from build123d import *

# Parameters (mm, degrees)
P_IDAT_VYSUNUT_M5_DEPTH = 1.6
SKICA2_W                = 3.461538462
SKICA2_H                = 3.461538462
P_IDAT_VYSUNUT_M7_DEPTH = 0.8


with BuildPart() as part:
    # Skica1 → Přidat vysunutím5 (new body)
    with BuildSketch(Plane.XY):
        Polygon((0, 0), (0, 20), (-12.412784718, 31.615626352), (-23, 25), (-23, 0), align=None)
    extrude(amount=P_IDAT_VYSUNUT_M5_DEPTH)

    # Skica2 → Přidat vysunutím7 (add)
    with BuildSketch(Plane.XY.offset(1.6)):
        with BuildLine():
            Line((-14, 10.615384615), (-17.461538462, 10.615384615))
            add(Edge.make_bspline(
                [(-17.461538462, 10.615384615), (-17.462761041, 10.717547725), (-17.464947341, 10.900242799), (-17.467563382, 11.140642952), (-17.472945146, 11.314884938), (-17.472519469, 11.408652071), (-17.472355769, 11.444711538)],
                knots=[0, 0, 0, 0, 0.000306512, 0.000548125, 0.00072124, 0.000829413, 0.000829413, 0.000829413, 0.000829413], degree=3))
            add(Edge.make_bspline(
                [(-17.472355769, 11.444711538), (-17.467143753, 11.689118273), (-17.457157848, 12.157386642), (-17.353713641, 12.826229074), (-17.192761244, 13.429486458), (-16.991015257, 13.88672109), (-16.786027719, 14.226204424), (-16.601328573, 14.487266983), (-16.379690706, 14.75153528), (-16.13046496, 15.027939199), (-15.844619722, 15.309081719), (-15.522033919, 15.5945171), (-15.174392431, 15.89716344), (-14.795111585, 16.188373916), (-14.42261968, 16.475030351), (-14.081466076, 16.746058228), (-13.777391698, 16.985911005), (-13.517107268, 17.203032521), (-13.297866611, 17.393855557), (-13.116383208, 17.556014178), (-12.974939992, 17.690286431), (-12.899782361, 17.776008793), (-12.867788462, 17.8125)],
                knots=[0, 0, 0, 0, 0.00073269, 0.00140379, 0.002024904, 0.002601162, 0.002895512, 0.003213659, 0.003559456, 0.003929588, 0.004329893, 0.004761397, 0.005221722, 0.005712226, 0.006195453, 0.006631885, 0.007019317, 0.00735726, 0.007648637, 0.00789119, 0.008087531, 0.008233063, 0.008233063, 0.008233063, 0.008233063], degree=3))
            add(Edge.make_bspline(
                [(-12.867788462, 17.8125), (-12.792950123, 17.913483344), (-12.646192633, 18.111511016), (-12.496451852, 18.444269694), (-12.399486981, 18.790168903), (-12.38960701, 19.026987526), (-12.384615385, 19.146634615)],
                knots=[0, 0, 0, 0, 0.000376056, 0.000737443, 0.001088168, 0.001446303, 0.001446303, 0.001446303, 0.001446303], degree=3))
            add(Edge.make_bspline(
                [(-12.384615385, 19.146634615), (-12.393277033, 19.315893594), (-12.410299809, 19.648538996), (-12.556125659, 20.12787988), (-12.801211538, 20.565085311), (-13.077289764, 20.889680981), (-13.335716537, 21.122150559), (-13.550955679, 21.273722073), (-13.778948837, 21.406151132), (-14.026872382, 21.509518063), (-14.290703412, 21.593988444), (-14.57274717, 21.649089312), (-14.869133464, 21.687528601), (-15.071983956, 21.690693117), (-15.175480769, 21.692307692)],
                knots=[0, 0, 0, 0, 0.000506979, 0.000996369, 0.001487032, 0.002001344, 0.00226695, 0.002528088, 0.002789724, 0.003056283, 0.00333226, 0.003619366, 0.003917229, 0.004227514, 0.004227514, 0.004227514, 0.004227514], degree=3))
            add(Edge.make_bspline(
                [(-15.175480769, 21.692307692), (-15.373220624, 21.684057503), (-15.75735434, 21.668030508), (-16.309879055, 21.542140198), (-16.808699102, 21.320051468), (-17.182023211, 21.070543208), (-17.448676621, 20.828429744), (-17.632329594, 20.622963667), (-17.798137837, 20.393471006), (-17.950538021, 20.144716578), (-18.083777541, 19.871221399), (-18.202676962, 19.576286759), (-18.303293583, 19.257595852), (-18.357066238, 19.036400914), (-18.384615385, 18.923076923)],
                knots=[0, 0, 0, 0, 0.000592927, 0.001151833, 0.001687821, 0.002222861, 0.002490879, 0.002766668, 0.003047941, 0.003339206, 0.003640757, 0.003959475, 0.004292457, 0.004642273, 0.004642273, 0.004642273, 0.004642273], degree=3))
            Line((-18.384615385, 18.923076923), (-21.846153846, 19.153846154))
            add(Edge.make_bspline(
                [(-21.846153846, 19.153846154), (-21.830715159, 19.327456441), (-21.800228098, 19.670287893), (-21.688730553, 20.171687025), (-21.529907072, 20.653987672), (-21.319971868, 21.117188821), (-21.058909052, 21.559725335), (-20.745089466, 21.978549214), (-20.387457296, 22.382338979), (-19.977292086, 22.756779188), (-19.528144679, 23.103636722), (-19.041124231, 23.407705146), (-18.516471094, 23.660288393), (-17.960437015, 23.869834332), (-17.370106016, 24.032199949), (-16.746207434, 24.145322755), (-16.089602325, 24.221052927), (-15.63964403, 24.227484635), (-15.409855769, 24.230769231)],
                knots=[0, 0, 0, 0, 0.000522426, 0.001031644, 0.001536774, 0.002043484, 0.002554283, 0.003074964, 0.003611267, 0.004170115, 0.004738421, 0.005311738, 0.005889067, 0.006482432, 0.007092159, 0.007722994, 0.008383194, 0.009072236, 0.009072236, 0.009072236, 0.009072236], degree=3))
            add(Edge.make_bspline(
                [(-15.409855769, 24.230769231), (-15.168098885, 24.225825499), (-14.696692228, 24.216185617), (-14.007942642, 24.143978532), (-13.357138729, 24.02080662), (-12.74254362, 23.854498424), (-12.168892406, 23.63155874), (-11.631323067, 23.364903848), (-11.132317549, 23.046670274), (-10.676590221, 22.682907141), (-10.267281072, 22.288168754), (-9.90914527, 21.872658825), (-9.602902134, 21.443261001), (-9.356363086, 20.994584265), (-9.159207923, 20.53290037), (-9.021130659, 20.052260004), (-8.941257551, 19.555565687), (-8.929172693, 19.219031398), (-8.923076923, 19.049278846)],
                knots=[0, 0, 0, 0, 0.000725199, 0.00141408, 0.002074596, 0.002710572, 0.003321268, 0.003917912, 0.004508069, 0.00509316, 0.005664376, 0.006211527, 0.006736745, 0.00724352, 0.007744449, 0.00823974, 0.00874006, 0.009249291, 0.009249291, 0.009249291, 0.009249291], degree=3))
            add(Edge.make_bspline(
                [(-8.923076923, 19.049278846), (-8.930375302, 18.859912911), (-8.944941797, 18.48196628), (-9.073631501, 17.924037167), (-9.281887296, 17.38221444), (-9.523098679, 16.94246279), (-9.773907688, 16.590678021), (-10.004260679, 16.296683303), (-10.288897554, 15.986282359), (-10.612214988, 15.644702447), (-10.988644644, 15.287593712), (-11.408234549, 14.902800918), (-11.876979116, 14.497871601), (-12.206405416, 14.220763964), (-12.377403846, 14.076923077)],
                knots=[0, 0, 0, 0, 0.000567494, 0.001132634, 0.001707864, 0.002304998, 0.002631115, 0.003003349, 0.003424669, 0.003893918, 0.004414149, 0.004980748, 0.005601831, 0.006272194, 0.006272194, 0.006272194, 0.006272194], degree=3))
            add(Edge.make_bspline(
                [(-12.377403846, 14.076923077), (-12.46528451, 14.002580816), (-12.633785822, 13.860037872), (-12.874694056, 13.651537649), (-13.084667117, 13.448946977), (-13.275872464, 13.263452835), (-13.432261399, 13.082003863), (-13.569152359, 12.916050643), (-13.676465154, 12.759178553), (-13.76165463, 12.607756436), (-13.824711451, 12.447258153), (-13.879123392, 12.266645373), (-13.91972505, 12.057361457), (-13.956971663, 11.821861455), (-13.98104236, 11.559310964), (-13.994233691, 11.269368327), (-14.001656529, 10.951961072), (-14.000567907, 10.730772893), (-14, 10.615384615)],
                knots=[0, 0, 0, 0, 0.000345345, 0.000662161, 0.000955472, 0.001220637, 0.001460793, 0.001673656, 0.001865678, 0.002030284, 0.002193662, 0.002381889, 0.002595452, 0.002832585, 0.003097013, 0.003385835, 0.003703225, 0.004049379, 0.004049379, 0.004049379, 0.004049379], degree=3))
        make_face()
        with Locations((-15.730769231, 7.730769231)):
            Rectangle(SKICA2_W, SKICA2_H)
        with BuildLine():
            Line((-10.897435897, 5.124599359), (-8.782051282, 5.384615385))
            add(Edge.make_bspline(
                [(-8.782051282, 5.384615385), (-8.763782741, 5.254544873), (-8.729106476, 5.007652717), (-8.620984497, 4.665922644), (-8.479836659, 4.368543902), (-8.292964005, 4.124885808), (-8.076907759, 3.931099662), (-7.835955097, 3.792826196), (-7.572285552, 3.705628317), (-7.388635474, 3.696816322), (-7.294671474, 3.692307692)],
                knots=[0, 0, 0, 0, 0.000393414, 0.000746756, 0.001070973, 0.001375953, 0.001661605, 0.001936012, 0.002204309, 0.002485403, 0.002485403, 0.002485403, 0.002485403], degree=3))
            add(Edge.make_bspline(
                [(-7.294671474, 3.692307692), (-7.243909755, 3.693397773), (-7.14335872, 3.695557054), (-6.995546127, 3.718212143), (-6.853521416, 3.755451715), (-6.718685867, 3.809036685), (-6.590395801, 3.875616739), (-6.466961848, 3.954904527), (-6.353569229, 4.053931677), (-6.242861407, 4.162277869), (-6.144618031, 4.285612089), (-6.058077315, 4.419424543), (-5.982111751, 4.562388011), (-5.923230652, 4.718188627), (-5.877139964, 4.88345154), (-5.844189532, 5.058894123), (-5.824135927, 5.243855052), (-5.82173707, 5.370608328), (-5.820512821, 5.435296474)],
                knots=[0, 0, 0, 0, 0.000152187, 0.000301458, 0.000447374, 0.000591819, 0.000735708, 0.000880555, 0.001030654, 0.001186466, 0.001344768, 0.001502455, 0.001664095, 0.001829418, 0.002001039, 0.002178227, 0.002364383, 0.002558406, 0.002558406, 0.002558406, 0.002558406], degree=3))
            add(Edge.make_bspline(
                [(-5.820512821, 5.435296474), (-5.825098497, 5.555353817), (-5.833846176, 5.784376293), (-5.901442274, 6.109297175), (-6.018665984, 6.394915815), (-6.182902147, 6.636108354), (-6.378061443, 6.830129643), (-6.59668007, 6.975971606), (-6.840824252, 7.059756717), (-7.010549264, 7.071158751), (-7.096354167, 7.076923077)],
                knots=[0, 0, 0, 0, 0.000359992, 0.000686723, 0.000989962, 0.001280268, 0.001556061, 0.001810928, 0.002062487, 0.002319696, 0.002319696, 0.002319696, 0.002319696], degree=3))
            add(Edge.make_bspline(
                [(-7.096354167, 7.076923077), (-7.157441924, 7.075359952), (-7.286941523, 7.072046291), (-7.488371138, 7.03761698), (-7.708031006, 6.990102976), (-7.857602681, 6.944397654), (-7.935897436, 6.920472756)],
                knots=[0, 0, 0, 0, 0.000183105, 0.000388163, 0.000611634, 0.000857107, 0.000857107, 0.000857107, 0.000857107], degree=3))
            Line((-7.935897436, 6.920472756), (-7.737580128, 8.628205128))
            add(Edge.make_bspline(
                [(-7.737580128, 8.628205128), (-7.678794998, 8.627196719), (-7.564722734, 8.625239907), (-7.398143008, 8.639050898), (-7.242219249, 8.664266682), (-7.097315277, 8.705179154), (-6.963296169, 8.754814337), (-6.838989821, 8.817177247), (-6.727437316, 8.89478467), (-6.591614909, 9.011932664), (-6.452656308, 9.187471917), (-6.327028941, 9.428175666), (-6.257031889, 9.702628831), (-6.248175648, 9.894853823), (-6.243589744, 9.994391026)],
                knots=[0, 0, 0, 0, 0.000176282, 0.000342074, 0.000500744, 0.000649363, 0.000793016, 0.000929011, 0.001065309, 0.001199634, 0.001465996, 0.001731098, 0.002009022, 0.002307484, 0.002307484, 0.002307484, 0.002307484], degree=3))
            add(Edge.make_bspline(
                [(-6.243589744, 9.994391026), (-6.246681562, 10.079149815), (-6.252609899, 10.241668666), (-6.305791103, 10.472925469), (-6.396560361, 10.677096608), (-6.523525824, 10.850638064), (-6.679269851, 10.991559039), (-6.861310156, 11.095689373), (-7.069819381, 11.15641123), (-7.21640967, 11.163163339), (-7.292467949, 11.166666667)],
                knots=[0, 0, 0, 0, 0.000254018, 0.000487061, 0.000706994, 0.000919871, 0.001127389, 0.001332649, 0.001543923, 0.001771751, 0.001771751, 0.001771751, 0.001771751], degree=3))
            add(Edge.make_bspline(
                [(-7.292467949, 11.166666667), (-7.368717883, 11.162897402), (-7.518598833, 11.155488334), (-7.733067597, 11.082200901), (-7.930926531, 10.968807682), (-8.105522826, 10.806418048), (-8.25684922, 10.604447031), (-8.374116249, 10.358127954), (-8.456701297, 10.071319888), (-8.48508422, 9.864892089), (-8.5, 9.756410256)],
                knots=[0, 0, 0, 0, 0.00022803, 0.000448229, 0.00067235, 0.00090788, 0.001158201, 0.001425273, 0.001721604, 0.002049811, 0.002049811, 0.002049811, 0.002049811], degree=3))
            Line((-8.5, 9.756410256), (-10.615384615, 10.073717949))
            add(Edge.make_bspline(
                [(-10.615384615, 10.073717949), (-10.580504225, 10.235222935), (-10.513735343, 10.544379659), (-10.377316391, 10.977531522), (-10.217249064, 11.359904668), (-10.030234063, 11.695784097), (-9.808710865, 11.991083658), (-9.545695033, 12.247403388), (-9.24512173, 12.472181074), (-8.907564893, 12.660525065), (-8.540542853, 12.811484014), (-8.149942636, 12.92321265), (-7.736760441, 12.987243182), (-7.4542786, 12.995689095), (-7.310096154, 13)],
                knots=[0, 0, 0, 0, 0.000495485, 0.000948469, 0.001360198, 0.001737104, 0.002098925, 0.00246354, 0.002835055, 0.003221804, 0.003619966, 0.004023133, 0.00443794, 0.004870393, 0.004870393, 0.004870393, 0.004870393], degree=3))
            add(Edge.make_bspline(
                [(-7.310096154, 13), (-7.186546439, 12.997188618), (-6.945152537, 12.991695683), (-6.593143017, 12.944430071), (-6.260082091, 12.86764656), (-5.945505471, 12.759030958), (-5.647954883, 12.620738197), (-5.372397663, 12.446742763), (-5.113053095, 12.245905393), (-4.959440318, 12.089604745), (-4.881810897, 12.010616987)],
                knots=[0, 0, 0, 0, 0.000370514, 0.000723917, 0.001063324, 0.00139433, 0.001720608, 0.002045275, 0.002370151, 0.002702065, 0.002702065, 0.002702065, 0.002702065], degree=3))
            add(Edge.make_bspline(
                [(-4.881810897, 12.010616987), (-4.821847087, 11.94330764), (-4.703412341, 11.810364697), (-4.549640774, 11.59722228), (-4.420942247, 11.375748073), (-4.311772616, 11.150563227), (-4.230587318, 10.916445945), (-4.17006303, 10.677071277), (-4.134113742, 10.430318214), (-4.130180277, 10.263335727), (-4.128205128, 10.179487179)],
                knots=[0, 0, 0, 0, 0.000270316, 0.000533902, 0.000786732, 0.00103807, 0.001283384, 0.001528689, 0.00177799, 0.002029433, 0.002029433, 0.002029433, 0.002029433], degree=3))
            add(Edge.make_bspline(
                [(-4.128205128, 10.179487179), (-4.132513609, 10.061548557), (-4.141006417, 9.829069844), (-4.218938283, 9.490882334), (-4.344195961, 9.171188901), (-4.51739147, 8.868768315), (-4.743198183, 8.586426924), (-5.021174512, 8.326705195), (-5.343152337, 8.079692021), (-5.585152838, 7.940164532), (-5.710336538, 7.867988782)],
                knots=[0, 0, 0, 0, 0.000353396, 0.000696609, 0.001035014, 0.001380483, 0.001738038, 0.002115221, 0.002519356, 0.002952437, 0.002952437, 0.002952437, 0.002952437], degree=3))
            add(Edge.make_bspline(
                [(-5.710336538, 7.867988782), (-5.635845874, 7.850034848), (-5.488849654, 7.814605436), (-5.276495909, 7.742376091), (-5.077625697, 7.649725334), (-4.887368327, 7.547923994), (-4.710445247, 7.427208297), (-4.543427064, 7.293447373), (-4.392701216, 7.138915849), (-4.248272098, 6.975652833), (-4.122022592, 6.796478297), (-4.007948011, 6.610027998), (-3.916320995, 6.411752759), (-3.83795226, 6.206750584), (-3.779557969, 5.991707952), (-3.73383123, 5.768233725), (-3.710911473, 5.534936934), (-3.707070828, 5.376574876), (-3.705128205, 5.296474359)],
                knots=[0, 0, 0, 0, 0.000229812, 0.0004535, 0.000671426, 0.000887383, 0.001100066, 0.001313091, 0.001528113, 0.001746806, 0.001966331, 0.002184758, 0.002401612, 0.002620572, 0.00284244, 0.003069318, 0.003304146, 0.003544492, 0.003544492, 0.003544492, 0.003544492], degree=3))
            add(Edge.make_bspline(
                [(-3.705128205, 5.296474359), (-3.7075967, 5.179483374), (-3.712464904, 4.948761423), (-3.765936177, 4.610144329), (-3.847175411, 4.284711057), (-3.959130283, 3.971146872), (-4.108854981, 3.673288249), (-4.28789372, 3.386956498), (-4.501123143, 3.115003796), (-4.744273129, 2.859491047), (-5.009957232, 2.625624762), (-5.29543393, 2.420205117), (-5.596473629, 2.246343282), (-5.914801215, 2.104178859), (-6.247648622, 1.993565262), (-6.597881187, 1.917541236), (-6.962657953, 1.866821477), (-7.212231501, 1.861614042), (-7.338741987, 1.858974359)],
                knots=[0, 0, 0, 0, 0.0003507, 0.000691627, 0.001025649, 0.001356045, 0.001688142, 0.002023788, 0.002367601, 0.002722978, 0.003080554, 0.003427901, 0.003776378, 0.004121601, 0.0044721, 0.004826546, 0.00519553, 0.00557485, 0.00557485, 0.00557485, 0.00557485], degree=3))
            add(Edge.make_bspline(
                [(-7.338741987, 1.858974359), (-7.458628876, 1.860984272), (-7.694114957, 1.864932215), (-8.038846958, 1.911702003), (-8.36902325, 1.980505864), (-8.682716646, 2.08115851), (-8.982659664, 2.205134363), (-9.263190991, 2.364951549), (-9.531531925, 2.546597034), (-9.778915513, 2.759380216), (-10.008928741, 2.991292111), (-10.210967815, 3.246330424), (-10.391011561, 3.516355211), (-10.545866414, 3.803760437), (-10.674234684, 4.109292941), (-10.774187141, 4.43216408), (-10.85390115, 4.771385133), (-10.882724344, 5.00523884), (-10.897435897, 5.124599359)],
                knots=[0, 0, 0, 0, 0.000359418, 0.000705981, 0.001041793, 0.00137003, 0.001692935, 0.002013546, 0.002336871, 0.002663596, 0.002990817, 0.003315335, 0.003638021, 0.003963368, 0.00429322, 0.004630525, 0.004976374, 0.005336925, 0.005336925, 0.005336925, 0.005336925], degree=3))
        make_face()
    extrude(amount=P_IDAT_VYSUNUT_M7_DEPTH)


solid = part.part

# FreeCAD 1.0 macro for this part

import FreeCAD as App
import Part
import Sketcher

V = App.Vector
Q = App.Units.Quantity

doc = App.newDocument("Part")
body = doc.addObject("PartDesign::Body", "Body")

sketch1 = body.newObject("Sketcher::SketchObject", "Sketch")
sketch1.AttachmentSupport = (doc.getObject("XY_Plane"), [""])
sketch1.MapMode = "FlatFace"
sketch1.addGeometry(Part.LineSegment(V(0, 0, 0), V(0, 20, 0)), False)
sketch1.addGeometry(Part.LineSegment(V(0, 20, 0), V(-12, 32, 0)), False)
sketch1.addGeometry(Part.LineSegment(V(-12, 32, 0), V(-23, 25, 0)), False)
sketch1.addGeometry(Part.LineSegment(V(-23, 25, 0), V(-23, 0, 0)), False)
sketch1.addGeometry(Part.LineSegment(V(-23, 0, 0), V(0, 0, 0)), False)
sketch1.addConstraint(Sketcher.Constraint("Coincident", 0, 2, 1, 1))
sketch1.addConstraint(Sketcher.Constraint("Coincident", 1, 2, 2, 1))
sketch1.addConstraint(Sketcher.Constraint("Coincident", 2, 2, 3, 1))
sketch1.addConstraint(Sketcher.Constraint("Coincident", 3, 2, 4, 1))
sketch1.addConstraint(Sketcher.Constraint("Coincident", 4, 2, 0, 1))
sketch1.addConstraint(Sketcher.Constraint("Vertical", 0))
sketch1.addConstraint(Sketcher.Constraint("Vertical", 3))
sketch1.addConstraint(Sketcher.Constraint("Horizontal", 4))
sketch1.addConstraint(Sketcher.Constraint("Coincident", 4, 2, -1, 1))
sketch1.addConstraint(Sketcher.Constraint("DistanceX", 4, 1, 4, 2, 23.0))
sketch1.addConstraint(Sketcher.Constraint("DistanceY", 0, 1, 0, 2, 20.0))
sketch1.addConstraint(Sketcher.Constraint("DistanceY", 3, 2, 3, 1, 25.0))
sketch1.addConstraint(Sketcher.Constraint("Angle", 2, Q("-148 deg")))
sketch1.addConstraint(Sketcher.Constraint("Distance", 1, 17.0))
pad1 = body.newObject("PartDesign::Pad", "Pad")
pad1.Profile = sketch1
pad1.Length = 1.6

sketch2 = body.newObject("Sketcher::SketchObject", "Sketch001")
sketch2.AttachmentSupport = (doc.getObject("XY_Plane"), [""])
sketch2.MapMode = "FlatFace"
sketch2.AttachmentOffset = App.Placement(V(0, 0, 1.6), App.Rotation())
sketch2.addGeometry(Part.LineSegment(V(-17.461538, 10.615385, 0), V(-14, 10.615385, 0)), False)
sketch2.addGeometry(Part.BSplineCurve([V(-12.377404, 14.076923, 0), V(-12.465285, 14.002581, 0), V(-12.633786, 13.860038, 0), V(-12.874694, 13.651538, 0), V(-13.084667, 13.448947, 0), V(-13.275872, 13.263453, 0), V(-13.432261, 13.082004, 0), V(-13.569152, 12.916051, 0), V(-13.676465, 12.759179, 0), V(-13.761655, 12.607756, 0), V(-13.824711, 12.447258, 0), V(-13.879123, 12.266645, 0), V(-13.919725, 12.057361, 0), V(-13.956972, 11.821861, 0), V(-13.981042, 11.559311, 0), V(-13.994234, 11.269368, 0), V(-14.001657, 10.951961, 0), V(-14.000568, 10.730773, 0), V(-14, 10.615385, 0)], [4, 1, 1, 1, 1, 1, 1, 1, 1, 1, 1, 1, 1, 1, 1, 1, 4], [0, 0.000345345, 0.000662161, 0.000955472, 0.001220637, 0.001460793, 0.001673656, 0.001865678, 0.002030284, 0.002193662, 0.002381889, 0.002595452, 0.002832585, 0.003097013, 0.003385835, 0.003703225, 0.004049379], False, 3, [1, 1, 1, 1, 1, 1, 1, 1, 1, 1, 1, 1, 1, 1, 1, 1, 1, 1, 1], False), False)
sketch2.addGeometry(Part.BSplineCurve([V(-8.923077, 19.049279, 0), V(-8.930375, 18.859913, 0), V(-8.944942, 18.481966, 0), V(-9.073632, 17.924037, 0), V(-9.281887, 17.382214, 0), V(-9.523099, 16.942463, 0), V(-9.773908, 16.590678, 0), V(-10.004261, 16.296683, 0), V(-10.288898, 15.986282, 0), V(-10.612215, 15.644702, 0), V(-10.988645, 15.287594, 0), V(-11.408235, 14.902801, 0), V(-11.876979, 14.497872, 0), V(-12.206405, 14.220764, 0), V(-12.377404, 14.076923, 0)], [4, 1, 1, 1, 1, 1, 1, 1, 1, 1, 1, 1, 4], [0, 0.000567494, 0.001132634, 0.001707864, 0.002304998, 0.002631115, 0.003003349, 0.003424669, 0.003893918, 0.004414149, 0.004980748, 0.005601831, 0.006272194], False, 3, [1, 1, 1, 1, 1, 1, 1, 1, 1, 1, 1, 1, 1, 1, 1], False), False)
sketch2.addGeometry(Part.BSplineCurve([V(-15.409856, 24.230769, 0), V(-15.168099, 24.225825, 0), V(-14.696692, 24.216186, 0), V(-14.007943, 24.143979, 0), V(-13.357139, 24.020807, 0), V(-12.742544, 23.854498, 0), V(-12.168892, 23.631559, 0), V(-11.631323, 23.364904, 0), V(-11.132318, 23.04667, 0), V(-10.67659, 22.682907, 0), V(-10.267281, 22.288169, 0), V(-9.909145, 21.872659, 0), V(-9.602902, 21.443261, 0), V(-9.356363, 20.994584, 0), V(-9.159208, 20.5329, 0), V(-9.021131, 20.05226, 0), V(-8.941258, 19.555566, 0), V(-8.929173, 19.219031, 0), V(-8.923077, 19.049279, 0)], [4, 1, 1, 1, 1, 1, 1, 1, 1, 1, 1, 1, 1, 1, 1, 1, 4], [0, 0.000725199, 0.00141408, 0.002074596, 0.002710572, 0.003321268, 0.003917912, 0.004508069, 0.00509316, 0.005664376, 0.006211527, 0.006736745, 0.00724352, 0.007744449, 0.00823974, 0.00874006, 0.009249291], False, 3, [1, 1, 1, 1, 1, 1, 1, 1, 1, 1, 1, 1, 1, 1, 1, 1, 1, 1, 1], False), False)
sketch2.addGeometry(Part.BSplineCurve([V(-21.846154, 19.153846, 0), V(-21.830715, 19.327456, 0), V(-21.800228, 19.670288, 0), V(-21.688731, 20.171687, 0), V(-21.529907, 20.653988, 0), V(-21.319972, 21.117189, 0), V(-21.058909, 21.559725, 0), V(-20.745089, 21.978549, 0), V(-20.387457, 22.382339, 0), V(-19.977292, 22.756779, 0), V(-19.528145, 23.103637, 0), V(-19.041124, 23.407705, 0), V(-18.516471, 23.660288, 0), V(-17.960437, 23.869834, 0), V(-17.370106, 24.0322, 0), V(-16.746207, 24.145323, 0), V(-16.089602, 24.221053, 0), V(-15.639644, 24.227485, 0), V(-15.409856, 24.230769, 0)], [4, 1, 1, 1, 1, 1, 1, 1, 1, 1, 1, 1, 1, 1, 1, 1, 4], [0, 0.000522426, 0.001031644, 0.001536774, 0.002043484, 0.002554283, 0.003074964, 0.003611267, 0.004170115, 0.004738421, 0.005311738, 0.005889067, 0.006482432, 0.007092159, 0.007722994, 0.008383194, 0.009072236], False, 3, [1, 1, 1, 1, 1, 1, 1, 1, 1, 1, 1, 1, 1, 1, 1, 1, 1, 1, 1], False), False)
sketch2.addGeometry(Part.LineSegment(V(-21.846154, 19.153846, 0), V(-18.384615, 18.923077, 0)), False)
sketch2.addGeometry(Part.BSplineCurve([V(-15.175481, 21.692308, 0), V(-15.373221, 21.684058, 0), V(-15.757354, 21.668031, 0), V(-16.309879, 21.54214, 0), V(-16.808699, 21.320051, 0), V(-17.182023, 21.070543, 0), V(-17.448677, 20.82843, 0), V(-17.63233, 20.622964, 0), V(-17.798138, 20.393471, 0), V(-17.950538, 20.144717, 0), V(-18.083778, 19.871221, 0), V(-18.202677, 19.576287, 0), V(-18.303294, 19.257596, 0), V(-18.357066, 19.036401, 0), V(-18.384615, 18.923077, 0)], [4, 1, 1, 1, 1, 1, 1, 1, 1, 1, 1, 1, 4], [0, 0.000592927, 0.001151833, 0.001687821, 0.002222861, 0.002490879, 0.002766668, 0.003047941, 0.003339206, 0.003640757, 0.003959475, 0.004292457, 0.004642273], False, 3, [1, 1, 1, 1, 1, 1, 1, 1, 1, 1, 1, 1, 1, 1, 1], False), False)
sketch2.addGeometry(Part.BSplineCurve([V(-12.384615, 19.146635, 0), V(-12.393277, 19.315894, 0), V(-12.4103, 19.648539, 0), V(-12.556126, 20.12788, 0), V(-12.801212, 20.565085, 0), V(-13.07729, 20.889681, 0), V(-13.335717, 21.122151, 0), V(-13.550956, 21.273722, 0), V(-13.778949, 21.406151, 0), V(-14.026872, 21.509518, 0), V(-14.290703, 21.593988, 0), V(-14.572747, 21.649089, 0), V(-14.869133, 21.687529, 0), V(-15.071984, 21.690693, 0), V(-15.175481, 21.692308, 0)], [4, 1, 1, 1, 1, 1, 1, 1, 1, 1, 1, 1, 4], [0, 0.000506979, 0.000996369, 0.001487032, 0.002001344, 0.00226695, 0.002528088, 0.002789724, 0.003056283, 0.00333226, 0.003619366, 0.003917229, 0.004227514], False, 3, [1, 1, 1, 1, 1, 1, 1, 1, 1, 1, 1, 1, 1, 1, 1], False), False)
sketch2.addGeometry(Part.BSplineCurve([V(-12.867788, 17.8125, 0), V(-12.79295, 17.913483, 0), V(-12.646193, 18.111511, 0), V(-12.496452, 18.44427, 0), V(-12.399487, 18.790169, 0), V(-12.389607, 19.026988, 0), V(-12.384615, 19.146635, 0)], [4, 1, 1, 1, 4], [0, 0.000376056, 0.000737443, 0.001088168, 0.001446303], False, 3, [1, 1, 1, 1, 1, 1, 1], False), False)
sketch2.addGeometry(Part.BSplineCurve([V(-17.472356, 11.444712, 0), V(-17.467144, 11.689118, 0), V(-17.457158, 12.157387, 0), V(-17.353714, 12.826229, 0), V(-17.192761, 13.429486, 0), V(-16.991015, 13.886721, 0), V(-16.786028, 14.226204, 0), V(-16.601329, 14.487267, 0), V(-16.379691, 14.751535, 0), V(-16.130465, 15.027939, 0), V(-15.84462, 15.309082, 0), V(-15.522034, 15.594517, 0), V(-15.174392, 15.897163, 0), V(-14.795112, 16.188374, 0), V(-14.42262, 16.47503, 0), V(-14.081466, 16.746058, 0), V(-13.777392, 16.985911, 0), V(-13.517107, 17.203033, 0), V(-13.297867, 17.393856, 0), V(-13.116383, 17.556014, 0), V(-12.97494, 17.690286, 0), V(-12.899782, 17.776009, 0), V(-12.867788, 17.8125, 0)], [4, 1, 1, 1, 1, 1, 1, 1, 1, 1, 1, 1, 1, 1, 1, 1, 1, 1, 1, 1, 4], [0, 0.00073269, 0.00140379, 0.002024904, 0.002601162, 0.002895512, 0.003213659, 0.003559456, 0.003929588, 0.004329893, 0.004761397, 0.005221722, 0.005712226, 0.006195453, 0.006631885, 0.007019317, 0.00735726, 0.007648637, 0.00789119, 0.008087531, 0.008233063], False, 3, [1, 1, 1, 1, 1, 1, 1, 1, 1, 1, 1, 1, 1, 1, 1, 1, 1, 1, 1, 1, 1, 1, 1], False), False)
sketch2.addGeometry(Part.BSplineCurve([V(-17.461538, 10.615385, 0), V(-17.462761, 10.717548, 0), V(-17.464947, 10.900243, 0), V(-17.467563, 11.140643, 0), V(-17.472945, 11.314885, 0), V(-17.472519, 11.408652, 0), V(-17.472356, 11.444712, 0)], [4, 1, 1, 1, 4], [0, 0.000306512, 0.000548125, 0.00072124, 0.000829413], False, 3, [1, 1, 1, 1, 1, 1, 1], False), False)
sketch2.addGeometry(Part.LineSegment(V(-17.461538, 9.461538, 0), V(-17.461538, 6, 0)), False)
sketch2.addGeometry(Part.LineSegment(V(-17.461538, 6, 0), V(-14, 6, 0)), False)
sketch2.addGeometry(Part.LineSegment(V(-14, 6, 0), V(-14, 9.461538, 0)), False)
sketch2.addGeometry(Part.LineSegment(V(-14, 9.461538, 0), V(-17.461538, 9.461538, 0)), False)
sketch2.addGeometry(Part.LineSegment(V(-8.782051, 5.384615, 0), V(-10.897436, 5.124599, 0)), False)
sketch2.addGeometry(Part.BSplineCurve([V(-7.338742, 1.858974, 0), V(-7.458629, 1.860984, 0), V(-7.694115, 1.864932, 0), V(-8.038847, 1.911702, 0), V(-8.369023, 1.980506, 0), V(-8.682717, 2.081159, 0), V(-8.98266, 2.205134, 0), V(-9.263191, 2.364952, 0), V(-9.531532, 2.546597, 0), V(-9.778916, 2.75938, 0), V(-10.008929, 2.991292, 0), V(-10.210968, 3.24633, 0), V(-10.391012, 3.516355, 0), V(-10.545866, 3.80376, 0), V(-10.674235, 4.109293, 0), V(-10.774187, 4.432164, 0), V(-10.853901, 4.771385, 0), V(-10.882724, 5.005239, 0), V(-10.897436, 5.124599, 0)], [4, 1, 1, 1, 1, 1, 1, 1, 1, 1, 1, 1, 1, 1, 1, 1, 4], [0, 0.000359418, 0.000705981, 0.001041793, 0.00137003, 0.001692935, 0.002013546, 0.002336871, 0.002663596, 0.002990817, 0.003315335, 0.003638021, 0.003963368, 0.00429322, 0.004630525, 0.004976374, 0.005336925], False, 3, [1, 1, 1, 1, 1, 1, 1, 1, 1, 1, 1, 1, 1, 1, 1, 1, 1, 1, 1], False), False)
sketch2.addGeometry(Part.BSplineCurve([V(-3.705128, 5.296474, 0), V(-3.707597, 5.179483, 0), V(-3.712465, 4.948761, 0), V(-3.765936, 4.610144, 0), V(-3.847175, 4.284711, 0), V(-3.95913, 3.971147, 0), V(-4.108855, 3.673288, 0), V(-4.287894, 3.386956, 0), V(-4.501123, 3.115004, 0), V(-4.744273, 2.859491, 0), V(-5.009957, 2.625625, 0), V(-5.295434, 2.420205, 0), V(-5.596474, 2.246343, 0), V(-5.914801, 2.104179, 0), V(-6.247649, 1.993565, 0), V(-6.597881, 1.917541, 0), V(-6.962658, 1.866821, 0), V(-7.212232, 1.861614, 0), V(-7.338742, 1.858974, 0)], [4, 1, 1, 1, 1, 1, 1, 1, 1, 1, 1, 1, 1, 1, 1, 1, 4], [0, 0.0003507, 0.000691627, 0.001025649, 0.001356045, 0.001688142, 0.002023788, 0.002367601, 0.002722978, 0.003080554, 0.003427901, 0.003776378, 0.004121601, 0.0044721, 0.004826546, 0.00519553, 0.00557485], False, 3, [1, 1, 1, 1, 1, 1, 1, 1, 1, 1, 1, 1, 1, 1, 1, 1, 1, 1, 1], False), False)
sketch2.addGeometry(Part.BSplineCurve([V(-5.710337, 7.867989, 0), V(-5.635846, 7.850035, 0), V(-5.48885, 7.814605, 0), V(-5.276496, 7.742376, 0), V(-5.077626, 7.649725, 0), V(-4.887368, 7.547924, 0), V(-4.710445, 7.427208, 0), V(-4.543427, 7.293447, 0), V(-4.392701, 7.138916, 0), V(-4.248272, 6.975653, 0), V(-4.122023, 6.796478, 0), V(-4.007948, 6.610028, 0), V(-3.916321, 6.411753, 0), V(-3.837952, 6.206751, 0), V(-3.779558, 5.991708, 0), V(-3.733831, 5.768234, 0), V(-3.710911, 5.534937, 0), V(-3.707071, 5.376575, 0), V(-3.705128, 5.296474, 0)], [4, 1, 1, 1, 1, 1, 1, 1, 1, 1, 1, 1, 1, 1, 1, 1, 4], [0, 0.000229812, 0.0004535, 0.000671426, 0.000887383, 0.001100066, 0.001313091, 0.001528113, 0.001746806, 0.001966331, 0.002184758, 0.002401612, 0.002620572, 0.00284244, 0.003069318, 0.003304146, 0.003544492], False, 3, [1, 1, 1, 1, 1, 1, 1, 1, 1, 1, 1, 1, 1, 1, 1, 1, 1, 1, 1], False), False)
sketch2.addGeometry(Part.BSplineCurve([V(-4.128205, 10.179487, 0), V(-4.132514, 10.061549, 0), V(-4.141006, 9.82907, 0), V(-4.218938, 9.490882, 0), V(-4.344196, 9.171189, 0), V(-4.517391, 8.868768, 0), V(-4.743198, 8.586427, 0), V(-5.021175, 8.326705, 0), V(-5.343152, 8.079692, 0), V(-5.585153, 7.940165, 0), V(-5.710337, 7.867989, 0)], [4, 1, 1, 1, 1, 1, 1, 1, 4], [0, 0.000353396, 0.000696609, 0.001035014, 0.001380483, 0.001738038, 0.002115221, 0.002519356, 0.002952437], False, 3, [1, 1, 1, 1, 1, 1, 1, 1, 1, 1, 1], False), False)
sketch2.addGeometry(Part.BSplineCurve([V(-4.881811, 12.010617, 0), V(-4.821847, 11.943308, 0), V(-4.703412, 11.810365, 0), V(-4.549641, 11.597222, 0), V(-4.420942, 11.375748, 0), V(-4.311773, 11.150563, 0), V(-4.230587, 10.916446, 0), V(-4.170063, 10.677071, 0), V(-4.134114, 10.430318, 0), V(-4.13018, 10.263336, 0), V(-4.128205, 10.179487, 0)], [4, 1, 1, 1, 1, 1, 1, 1, 4], [0, 0.000270316, 0.000533902, 0.000786732, 0.00103807, 0.001283384, 0.001528689, 0.00177799, 0.002029433], False, 3, [1, 1, 1, 1, 1, 1, 1, 1, 1, 1, 1], False), False)
sketch2.addGeometry(Part.BSplineCurve([V(-7.310096, 13, 0), V(-7.186546, 12.997189, 0), V(-6.945153, 12.991696, 0), V(-6.593143, 12.94443, 0), V(-6.260082, 12.867647, 0), V(-5.945505, 12.759031, 0), V(-5.647955, 12.620738, 0), V(-5.372398, 12.446743, 0), V(-5.113053, 12.245905, 0), V(-4.95944, 12.089605, 0), V(-4.881811, 12.010617, 0)], [4, 1, 1, 1, 1, 1, 1, 1, 4], [0, 0.000370514, 0.000723917, 0.001063324, 0.00139433, 0.001720608, 0.002045275, 0.002370151, 0.002702065], False, 3, [1, 1, 1, 1, 1, 1, 1, 1, 1, 1, 1], False), False)
sketch2.addGeometry(Part.BSplineCurve([V(-10.615385, 10.073718, 0), V(-10.580504, 10.235223, 0), V(-10.513735, 10.54438, 0), V(-10.377316, 10.977532, 0), V(-10.217249, 11.359905, 0), V(-10.030234, 11.695784, 0), V(-9.808711, 11.991084, 0), V(-9.545695, 12.247403, 0), V(-9.245122, 12.472181, 0), V(-8.907565, 12.660525, 0), V(-8.540543, 12.811484, 0), V(-8.149943, 12.923213, 0), V(-7.73676, 12.987243, 0), V(-7.454279, 12.995689, 0), V(-7.310096, 13, 0)], [4, 1, 1, 1, 1, 1, 1, 1, 1, 1, 1, 1, 4], [0, 0.000495485, 0.000948469, 0.001360198, 0.001737104, 0.002098925, 0.00246354, 0.002835055, 0.003221804, 0.003619966, 0.004023133, 0.00443794, 0.004870393], False, 3, [1, 1, 1, 1, 1, 1, 1, 1, 1, 1, 1, 1, 1, 1, 1], False), False)
sketch2.addGeometry(Part.LineSegment(V(-10.615385, 10.073718, 0), V(-8.5, 9.75641, 0)), False)
sketch2.addGeometry(Part.BSplineCurve([V(-7.292468, 11.166667, 0), V(-7.368718, 11.162897, 0), V(-7.518599, 11.155488, 0), V(-7.733068, 11.082201, 0), V(-7.930927, 10.968808, 0), V(-8.105523, 10.806418, 0), V(-8.256849, 10.604447, 0), V(-8.374116, 10.358128, 0), V(-8.456701, 10.07132, 0), V(-8.485084, 9.864892, 0), V(-8.5, 9.75641, 0)], [4, 1, 1, 1, 1, 1, 1, 1, 4], [0, 0.00022803, 0.000448229, 0.00067235, 0.00090788, 0.001158201, 0.001425273, 0.001721604, 0.002049811], False, 3, [1, 1, 1, 1, 1, 1, 1, 1, 1, 1, 1], False), False)
sketch2.addGeometry(Part.BSplineCurve([V(-6.24359, 9.994391, 0), V(-6.246682, 10.07915, 0), V(-6.25261, 10.241669, 0), V(-6.305791, 10.472925, 0), V(-6.39656, 10.677097, 0), V(-6.523526, 10.850638, 0), V(-6.67927, 10.991559, 0), V(-6.86131, 11.095689, 0), V(-7.069819, 11.156411, 0), V(-7.21641, 11.163163, 0), V(-7.292468, 11.166667, 0)], [4, 1, 1, 1, 1, 1, 1, 1, 4], [0, 0.000254018, 0.000487061, 0.000706994, 0.000919871, 0.001127389, 0.001332649, 0.001543923, 0.001771751], False, 3, [1, 1, 1, 1, 1, 1, 1, 1, 1, 1, 1], False), False)
sketch2.addGeometry(Part.BSplineCurve([V(-7.73758, 8.628205, 0), V(-7.678795, 8.627197, 0), V(-7.564723, 8.62524, 0), V(-7.398143, 8.639051, 0), V(-7.242219, 8.664267, 0), V(-7.097315, 8.705179, 0), V(-6.963296, 8.754814, 0), V(-6.83899, 8.817177, 0), V(-6.727437, 8.894785, 0), V(-6.591615, 9.011933, 0), V(-6.452656, 9.187472, 0), V(-6.327029, 9.428176, 0), V(-6.257032, 9.702629, 0), V(-6.248176, 9.894854, 0), V(-6.24359, 9.994391, 0)], [4, 1, 1, 1, 1, 1, 1, 1, 1, 1, 1, 1, 4], [0, 0.000176282, 0.000342074, 0.000500744, 0.000649363, 0.000793016, 0.000929011, 0.001065309, 0.001199634, 0.001465996, 0.001731098, 0.002009022, 0.002307484], False, 3, [1, 1, 1, 1, 1, 1, 1, 1, 1, 1, 1, 1, 1, 1, 1], False), False)
sketch2.addGeometry(Part.LineSegment(V(-7.73758, 8.628205, 0), V(-7.935897, 6.920473, 0)), False)
sketch2.addGeometry(Part.BSplineCurve([V(-7.096354, 7.076923, 0), V(-7.157442, 7.07536, 0), V(-7.286942, 7.072046, 0), V(-7.488371, 7.037617, 0), V(-7.708031, 6.990103, 0), V(-7.857603, 6.944398, 0), V(-7.935897, 6.920473, 0)], [4, 1, 1, 1, 4], [0, 0.000183105, 0.000388163, 0.000611634, 0.000857107], False, 3, [1, 1, 1, 1, 1, 1, 1], False), False)
sketch2.addGeometry(Part.BSplineCurve([V(-5.820513, 5.435296, 0), V(-5.825098, 5.555354, 0), V(-5.833846, 5.784376, 0), V(-5.901442, 6.109297, 0), V(-6.018666, 6.394916, 0), V(-6.182902, 6.636108, 0), V(-6.378061, 6.83013, 0), V(-6.59668, 6.975972, 0), V(-6.840824, 7.059757, 0), V(-7.010549, 7.071159, 0), V(-7.096354, 7.076923, 0)], [4, 1, 1, 1, 1, 1, 1, 1, 4], [0, 0.000359992, 0.000686723, 0.000989962, 0.001280268, 0.001556061, 0.001810928, 0.002062487, 0.002319696], False, 3, [1, 1, 1, 1, 1, 1, 1, 1, 1, 1, 1], False), False)
sketch2.addGeometry(Part.BSplineCurve([V(-7.294671, 3.692308, 0), V(-7.24391, 3.693398, 0), V(-7.143359, 3.695557, 0), V(-6.995546, 3.718212, 0), V(-6.853521, 3.755452, 0), V(-6.718686, 3.809037, 0), V(-6.590396, 3.875617, 0), V(-6.466962, 3.954905, 0), V(-6.353569, 4.053932, 0), V(-6.242861, 4.162278, 0), V(-6.144618, 4.285612, 0), V(-6.058077, 4.419425, 0), V(-5.982112, 4.562388, 0), V(-5.923231, 4.718189, 0), V(-5.87714, 4.883452, 0), V(-5.84419, 5.058894, 0), V(-5.824136, 5.243855, 0), V(-5.821737, 5.370608, 0), V(-5.820513, 5.435296, 0)], [4, 1, 1, 1, 1, 1, 1, 1, 1, 1, 1, 1, 1, 1, 1, 1, 4], [0, 0.000152187, 0.000301458, 0.000447374, 0.000591819, 0.000735708, 0.000880555, 0.001030654, 0.001186466, 0.001344768, 0.001502455, 0.001664095, 0.001829418, 0.002001039, 0.002178227, 0.002364383, 0.002558406], False, 3, [1, 1, 1, 1, 1, 1, 1, 1, 1, 1, 1, 1, 1, 1, 1, 1, 1, 1, 1], False), False)
sketch2.addGeometry(Part.BSplineCurve([V(-8.782051, 5.384615, 0), V(-8.763783, 5.254545, 0), V(-8.729106, 5.007653, 0), V(-8.620984, 4.665923, 0), V(-8.479837, 4.368544, 0), V(-8.292964, 4.124886, 0), V(-8.076908, 3.9311, 0), V(-7.835955, 3.792826, 0), V(-7.572286, 3.705628, 0), V(-7.388635, 3.696816, 0), V(-7.294671, 3.692308, 0)], [4, 1, 1, 1, 1, 1, 1, 1, 4], [0, 0.000393414, 0.000746756, 0.001070973, 0.001375953, 0.001661605, 0.001936012, 0.002204309, 0.002485403], False, 3, [1, 1, 1, 1, 1, 1, 1, 1, 1, 1, 1], False), False)
sketch2.addConstraint(Sketcher.Constraint("Block", 1))
sketch2.addConstraint(Sketcher.Constraint("Block", 2))
sketch2.addConstraint(Sketcher.Constraint("Block", 3))
sketch2.addConstraint(Sketcher.Constraint("Block", 4))
sketch2.addConstraint(Sketcher.Constraint("Block", 6))
sketch2.addConstraint(Sketcher.Constraint("Block", 7))
sketch2.addConstraint(Sketcher.Constraint("Block", 8))
sketch2.addConstraint(Sketcher.Constraint("Block", 9))
sketch2.addConstraint(Sketcher.Constraint("Block", 10))
sketch2.addConstraint(Sketcher.Constraint("Block", 16))
sketch2.addConstraint(Sketcher.Constraint("Block", 17))
sketch2.addConstraint(Sketcher.Constraint("Block", 18))
sketch2.addConstraint(Sketcher.Constraint("Block", 19))
sketch2.addConstraint(Sketcher.Constraint("Block", 20))
sketch2.addConstraint(Sketcher.Constraint("Block", 21))
sketch2.addConstraint(Sketcher.Constraint("Block", 22))
sketch2.addConstraint(Sketcher.Constraint("Block", 24))
sketch2.addConstraint(Sketcher.Constraint("Block", 25))
sketch2.addConstraint(Sketcher.Constraint("Block", 26))
sketch2.addConstraint(Sketcher.Constraint("Block", 28))
sketch2.addConstraint(Sketcher.Constraint("Block", 29))
sketch2.addConstraint(Sketcher.Constraint("Block", 30))
sketch2.addConstraint(Sketcher.Constraint("Block", 31))
sketch2.addConstraint(Sketcher.Constraint("Coincident", 0, 2, 1, 2))
sketch2.addConstraint(Sketcher.Constraint("Coincident", 4, 1, 5, 1))
sketch2.addConstraint(Sketcher.Constraint("Coincident", 5, 2, 6, 2))
sketch2.addConstraint(Sketcher.Constraint("Coincident", 10, 1, 0, 1))
sketch2.addConstraint(Sketcher.Constraint("Coincident", 11, 2, 12, 1))
sketch2.addConstraint(Sketcher.Constraint("Coincident", 12, 2, 13, 1))
sketch2.addConstraint(Sketcher.Constraint("Coincident", 13, 2, 14, 1))
sketch2.addConstraint(Sketcher.Constraint("Coincident", 14, 2, 11, 1))
sketch2.addConstraint(Sketcher.Constraint("Coincident", 15, 2, 16, 2))
sketch2.addConstraint(Sketcher.Constraint("Coincident", 22, 1, 23, 1))
sketch2.addConstraint(Sketcher.Constraint("Coincident", 23, 2, 24, 2))
sketch2.addConstraint(Sketcher.Constraint("Coincident", 26, 1, 27, 1))
sketch2.addConstraint(Sketcher.Constraint("Coincident", 27, 2, 28, 2))
sketch2.addConstraint(Sketcher.Constraint("Coincident", 31, 1, 15, 1))
sketch2.addConstraint(Sketcher.Constraint("Vertical", 11))
sketch2.addConstraint(Sketcher.Constraint("Horizontal", 12))
sketch2.addConstraint(Sketcher.Constraint("Vertical", 13))
sketch2.addConstraint(Sketcher.Constraint("Horizontal", 14))
sketch2.addConstraint(Sketcher.Constraint("DistanceY", -1, 1, 11, 2, 6.0))
sketch2.addConstraint(Sketcher.Constraint("DistanceX", 12, 2, -1, 1, 14.0))
sketch2.addConstraint(Sketcher.Constraint("DistanceX", 12, 1, 12, 2, 3.461538))
sketch2.addConstraint(Sketcher.Constraint("DistanceY", 11, 2, 11, 1, 3.461538))
pad2 = body.newObject("PartDesign::Pad", "Pad001")
pad2.Profile = sketch2
pad2.Length = 0.8

doc.recompute()
